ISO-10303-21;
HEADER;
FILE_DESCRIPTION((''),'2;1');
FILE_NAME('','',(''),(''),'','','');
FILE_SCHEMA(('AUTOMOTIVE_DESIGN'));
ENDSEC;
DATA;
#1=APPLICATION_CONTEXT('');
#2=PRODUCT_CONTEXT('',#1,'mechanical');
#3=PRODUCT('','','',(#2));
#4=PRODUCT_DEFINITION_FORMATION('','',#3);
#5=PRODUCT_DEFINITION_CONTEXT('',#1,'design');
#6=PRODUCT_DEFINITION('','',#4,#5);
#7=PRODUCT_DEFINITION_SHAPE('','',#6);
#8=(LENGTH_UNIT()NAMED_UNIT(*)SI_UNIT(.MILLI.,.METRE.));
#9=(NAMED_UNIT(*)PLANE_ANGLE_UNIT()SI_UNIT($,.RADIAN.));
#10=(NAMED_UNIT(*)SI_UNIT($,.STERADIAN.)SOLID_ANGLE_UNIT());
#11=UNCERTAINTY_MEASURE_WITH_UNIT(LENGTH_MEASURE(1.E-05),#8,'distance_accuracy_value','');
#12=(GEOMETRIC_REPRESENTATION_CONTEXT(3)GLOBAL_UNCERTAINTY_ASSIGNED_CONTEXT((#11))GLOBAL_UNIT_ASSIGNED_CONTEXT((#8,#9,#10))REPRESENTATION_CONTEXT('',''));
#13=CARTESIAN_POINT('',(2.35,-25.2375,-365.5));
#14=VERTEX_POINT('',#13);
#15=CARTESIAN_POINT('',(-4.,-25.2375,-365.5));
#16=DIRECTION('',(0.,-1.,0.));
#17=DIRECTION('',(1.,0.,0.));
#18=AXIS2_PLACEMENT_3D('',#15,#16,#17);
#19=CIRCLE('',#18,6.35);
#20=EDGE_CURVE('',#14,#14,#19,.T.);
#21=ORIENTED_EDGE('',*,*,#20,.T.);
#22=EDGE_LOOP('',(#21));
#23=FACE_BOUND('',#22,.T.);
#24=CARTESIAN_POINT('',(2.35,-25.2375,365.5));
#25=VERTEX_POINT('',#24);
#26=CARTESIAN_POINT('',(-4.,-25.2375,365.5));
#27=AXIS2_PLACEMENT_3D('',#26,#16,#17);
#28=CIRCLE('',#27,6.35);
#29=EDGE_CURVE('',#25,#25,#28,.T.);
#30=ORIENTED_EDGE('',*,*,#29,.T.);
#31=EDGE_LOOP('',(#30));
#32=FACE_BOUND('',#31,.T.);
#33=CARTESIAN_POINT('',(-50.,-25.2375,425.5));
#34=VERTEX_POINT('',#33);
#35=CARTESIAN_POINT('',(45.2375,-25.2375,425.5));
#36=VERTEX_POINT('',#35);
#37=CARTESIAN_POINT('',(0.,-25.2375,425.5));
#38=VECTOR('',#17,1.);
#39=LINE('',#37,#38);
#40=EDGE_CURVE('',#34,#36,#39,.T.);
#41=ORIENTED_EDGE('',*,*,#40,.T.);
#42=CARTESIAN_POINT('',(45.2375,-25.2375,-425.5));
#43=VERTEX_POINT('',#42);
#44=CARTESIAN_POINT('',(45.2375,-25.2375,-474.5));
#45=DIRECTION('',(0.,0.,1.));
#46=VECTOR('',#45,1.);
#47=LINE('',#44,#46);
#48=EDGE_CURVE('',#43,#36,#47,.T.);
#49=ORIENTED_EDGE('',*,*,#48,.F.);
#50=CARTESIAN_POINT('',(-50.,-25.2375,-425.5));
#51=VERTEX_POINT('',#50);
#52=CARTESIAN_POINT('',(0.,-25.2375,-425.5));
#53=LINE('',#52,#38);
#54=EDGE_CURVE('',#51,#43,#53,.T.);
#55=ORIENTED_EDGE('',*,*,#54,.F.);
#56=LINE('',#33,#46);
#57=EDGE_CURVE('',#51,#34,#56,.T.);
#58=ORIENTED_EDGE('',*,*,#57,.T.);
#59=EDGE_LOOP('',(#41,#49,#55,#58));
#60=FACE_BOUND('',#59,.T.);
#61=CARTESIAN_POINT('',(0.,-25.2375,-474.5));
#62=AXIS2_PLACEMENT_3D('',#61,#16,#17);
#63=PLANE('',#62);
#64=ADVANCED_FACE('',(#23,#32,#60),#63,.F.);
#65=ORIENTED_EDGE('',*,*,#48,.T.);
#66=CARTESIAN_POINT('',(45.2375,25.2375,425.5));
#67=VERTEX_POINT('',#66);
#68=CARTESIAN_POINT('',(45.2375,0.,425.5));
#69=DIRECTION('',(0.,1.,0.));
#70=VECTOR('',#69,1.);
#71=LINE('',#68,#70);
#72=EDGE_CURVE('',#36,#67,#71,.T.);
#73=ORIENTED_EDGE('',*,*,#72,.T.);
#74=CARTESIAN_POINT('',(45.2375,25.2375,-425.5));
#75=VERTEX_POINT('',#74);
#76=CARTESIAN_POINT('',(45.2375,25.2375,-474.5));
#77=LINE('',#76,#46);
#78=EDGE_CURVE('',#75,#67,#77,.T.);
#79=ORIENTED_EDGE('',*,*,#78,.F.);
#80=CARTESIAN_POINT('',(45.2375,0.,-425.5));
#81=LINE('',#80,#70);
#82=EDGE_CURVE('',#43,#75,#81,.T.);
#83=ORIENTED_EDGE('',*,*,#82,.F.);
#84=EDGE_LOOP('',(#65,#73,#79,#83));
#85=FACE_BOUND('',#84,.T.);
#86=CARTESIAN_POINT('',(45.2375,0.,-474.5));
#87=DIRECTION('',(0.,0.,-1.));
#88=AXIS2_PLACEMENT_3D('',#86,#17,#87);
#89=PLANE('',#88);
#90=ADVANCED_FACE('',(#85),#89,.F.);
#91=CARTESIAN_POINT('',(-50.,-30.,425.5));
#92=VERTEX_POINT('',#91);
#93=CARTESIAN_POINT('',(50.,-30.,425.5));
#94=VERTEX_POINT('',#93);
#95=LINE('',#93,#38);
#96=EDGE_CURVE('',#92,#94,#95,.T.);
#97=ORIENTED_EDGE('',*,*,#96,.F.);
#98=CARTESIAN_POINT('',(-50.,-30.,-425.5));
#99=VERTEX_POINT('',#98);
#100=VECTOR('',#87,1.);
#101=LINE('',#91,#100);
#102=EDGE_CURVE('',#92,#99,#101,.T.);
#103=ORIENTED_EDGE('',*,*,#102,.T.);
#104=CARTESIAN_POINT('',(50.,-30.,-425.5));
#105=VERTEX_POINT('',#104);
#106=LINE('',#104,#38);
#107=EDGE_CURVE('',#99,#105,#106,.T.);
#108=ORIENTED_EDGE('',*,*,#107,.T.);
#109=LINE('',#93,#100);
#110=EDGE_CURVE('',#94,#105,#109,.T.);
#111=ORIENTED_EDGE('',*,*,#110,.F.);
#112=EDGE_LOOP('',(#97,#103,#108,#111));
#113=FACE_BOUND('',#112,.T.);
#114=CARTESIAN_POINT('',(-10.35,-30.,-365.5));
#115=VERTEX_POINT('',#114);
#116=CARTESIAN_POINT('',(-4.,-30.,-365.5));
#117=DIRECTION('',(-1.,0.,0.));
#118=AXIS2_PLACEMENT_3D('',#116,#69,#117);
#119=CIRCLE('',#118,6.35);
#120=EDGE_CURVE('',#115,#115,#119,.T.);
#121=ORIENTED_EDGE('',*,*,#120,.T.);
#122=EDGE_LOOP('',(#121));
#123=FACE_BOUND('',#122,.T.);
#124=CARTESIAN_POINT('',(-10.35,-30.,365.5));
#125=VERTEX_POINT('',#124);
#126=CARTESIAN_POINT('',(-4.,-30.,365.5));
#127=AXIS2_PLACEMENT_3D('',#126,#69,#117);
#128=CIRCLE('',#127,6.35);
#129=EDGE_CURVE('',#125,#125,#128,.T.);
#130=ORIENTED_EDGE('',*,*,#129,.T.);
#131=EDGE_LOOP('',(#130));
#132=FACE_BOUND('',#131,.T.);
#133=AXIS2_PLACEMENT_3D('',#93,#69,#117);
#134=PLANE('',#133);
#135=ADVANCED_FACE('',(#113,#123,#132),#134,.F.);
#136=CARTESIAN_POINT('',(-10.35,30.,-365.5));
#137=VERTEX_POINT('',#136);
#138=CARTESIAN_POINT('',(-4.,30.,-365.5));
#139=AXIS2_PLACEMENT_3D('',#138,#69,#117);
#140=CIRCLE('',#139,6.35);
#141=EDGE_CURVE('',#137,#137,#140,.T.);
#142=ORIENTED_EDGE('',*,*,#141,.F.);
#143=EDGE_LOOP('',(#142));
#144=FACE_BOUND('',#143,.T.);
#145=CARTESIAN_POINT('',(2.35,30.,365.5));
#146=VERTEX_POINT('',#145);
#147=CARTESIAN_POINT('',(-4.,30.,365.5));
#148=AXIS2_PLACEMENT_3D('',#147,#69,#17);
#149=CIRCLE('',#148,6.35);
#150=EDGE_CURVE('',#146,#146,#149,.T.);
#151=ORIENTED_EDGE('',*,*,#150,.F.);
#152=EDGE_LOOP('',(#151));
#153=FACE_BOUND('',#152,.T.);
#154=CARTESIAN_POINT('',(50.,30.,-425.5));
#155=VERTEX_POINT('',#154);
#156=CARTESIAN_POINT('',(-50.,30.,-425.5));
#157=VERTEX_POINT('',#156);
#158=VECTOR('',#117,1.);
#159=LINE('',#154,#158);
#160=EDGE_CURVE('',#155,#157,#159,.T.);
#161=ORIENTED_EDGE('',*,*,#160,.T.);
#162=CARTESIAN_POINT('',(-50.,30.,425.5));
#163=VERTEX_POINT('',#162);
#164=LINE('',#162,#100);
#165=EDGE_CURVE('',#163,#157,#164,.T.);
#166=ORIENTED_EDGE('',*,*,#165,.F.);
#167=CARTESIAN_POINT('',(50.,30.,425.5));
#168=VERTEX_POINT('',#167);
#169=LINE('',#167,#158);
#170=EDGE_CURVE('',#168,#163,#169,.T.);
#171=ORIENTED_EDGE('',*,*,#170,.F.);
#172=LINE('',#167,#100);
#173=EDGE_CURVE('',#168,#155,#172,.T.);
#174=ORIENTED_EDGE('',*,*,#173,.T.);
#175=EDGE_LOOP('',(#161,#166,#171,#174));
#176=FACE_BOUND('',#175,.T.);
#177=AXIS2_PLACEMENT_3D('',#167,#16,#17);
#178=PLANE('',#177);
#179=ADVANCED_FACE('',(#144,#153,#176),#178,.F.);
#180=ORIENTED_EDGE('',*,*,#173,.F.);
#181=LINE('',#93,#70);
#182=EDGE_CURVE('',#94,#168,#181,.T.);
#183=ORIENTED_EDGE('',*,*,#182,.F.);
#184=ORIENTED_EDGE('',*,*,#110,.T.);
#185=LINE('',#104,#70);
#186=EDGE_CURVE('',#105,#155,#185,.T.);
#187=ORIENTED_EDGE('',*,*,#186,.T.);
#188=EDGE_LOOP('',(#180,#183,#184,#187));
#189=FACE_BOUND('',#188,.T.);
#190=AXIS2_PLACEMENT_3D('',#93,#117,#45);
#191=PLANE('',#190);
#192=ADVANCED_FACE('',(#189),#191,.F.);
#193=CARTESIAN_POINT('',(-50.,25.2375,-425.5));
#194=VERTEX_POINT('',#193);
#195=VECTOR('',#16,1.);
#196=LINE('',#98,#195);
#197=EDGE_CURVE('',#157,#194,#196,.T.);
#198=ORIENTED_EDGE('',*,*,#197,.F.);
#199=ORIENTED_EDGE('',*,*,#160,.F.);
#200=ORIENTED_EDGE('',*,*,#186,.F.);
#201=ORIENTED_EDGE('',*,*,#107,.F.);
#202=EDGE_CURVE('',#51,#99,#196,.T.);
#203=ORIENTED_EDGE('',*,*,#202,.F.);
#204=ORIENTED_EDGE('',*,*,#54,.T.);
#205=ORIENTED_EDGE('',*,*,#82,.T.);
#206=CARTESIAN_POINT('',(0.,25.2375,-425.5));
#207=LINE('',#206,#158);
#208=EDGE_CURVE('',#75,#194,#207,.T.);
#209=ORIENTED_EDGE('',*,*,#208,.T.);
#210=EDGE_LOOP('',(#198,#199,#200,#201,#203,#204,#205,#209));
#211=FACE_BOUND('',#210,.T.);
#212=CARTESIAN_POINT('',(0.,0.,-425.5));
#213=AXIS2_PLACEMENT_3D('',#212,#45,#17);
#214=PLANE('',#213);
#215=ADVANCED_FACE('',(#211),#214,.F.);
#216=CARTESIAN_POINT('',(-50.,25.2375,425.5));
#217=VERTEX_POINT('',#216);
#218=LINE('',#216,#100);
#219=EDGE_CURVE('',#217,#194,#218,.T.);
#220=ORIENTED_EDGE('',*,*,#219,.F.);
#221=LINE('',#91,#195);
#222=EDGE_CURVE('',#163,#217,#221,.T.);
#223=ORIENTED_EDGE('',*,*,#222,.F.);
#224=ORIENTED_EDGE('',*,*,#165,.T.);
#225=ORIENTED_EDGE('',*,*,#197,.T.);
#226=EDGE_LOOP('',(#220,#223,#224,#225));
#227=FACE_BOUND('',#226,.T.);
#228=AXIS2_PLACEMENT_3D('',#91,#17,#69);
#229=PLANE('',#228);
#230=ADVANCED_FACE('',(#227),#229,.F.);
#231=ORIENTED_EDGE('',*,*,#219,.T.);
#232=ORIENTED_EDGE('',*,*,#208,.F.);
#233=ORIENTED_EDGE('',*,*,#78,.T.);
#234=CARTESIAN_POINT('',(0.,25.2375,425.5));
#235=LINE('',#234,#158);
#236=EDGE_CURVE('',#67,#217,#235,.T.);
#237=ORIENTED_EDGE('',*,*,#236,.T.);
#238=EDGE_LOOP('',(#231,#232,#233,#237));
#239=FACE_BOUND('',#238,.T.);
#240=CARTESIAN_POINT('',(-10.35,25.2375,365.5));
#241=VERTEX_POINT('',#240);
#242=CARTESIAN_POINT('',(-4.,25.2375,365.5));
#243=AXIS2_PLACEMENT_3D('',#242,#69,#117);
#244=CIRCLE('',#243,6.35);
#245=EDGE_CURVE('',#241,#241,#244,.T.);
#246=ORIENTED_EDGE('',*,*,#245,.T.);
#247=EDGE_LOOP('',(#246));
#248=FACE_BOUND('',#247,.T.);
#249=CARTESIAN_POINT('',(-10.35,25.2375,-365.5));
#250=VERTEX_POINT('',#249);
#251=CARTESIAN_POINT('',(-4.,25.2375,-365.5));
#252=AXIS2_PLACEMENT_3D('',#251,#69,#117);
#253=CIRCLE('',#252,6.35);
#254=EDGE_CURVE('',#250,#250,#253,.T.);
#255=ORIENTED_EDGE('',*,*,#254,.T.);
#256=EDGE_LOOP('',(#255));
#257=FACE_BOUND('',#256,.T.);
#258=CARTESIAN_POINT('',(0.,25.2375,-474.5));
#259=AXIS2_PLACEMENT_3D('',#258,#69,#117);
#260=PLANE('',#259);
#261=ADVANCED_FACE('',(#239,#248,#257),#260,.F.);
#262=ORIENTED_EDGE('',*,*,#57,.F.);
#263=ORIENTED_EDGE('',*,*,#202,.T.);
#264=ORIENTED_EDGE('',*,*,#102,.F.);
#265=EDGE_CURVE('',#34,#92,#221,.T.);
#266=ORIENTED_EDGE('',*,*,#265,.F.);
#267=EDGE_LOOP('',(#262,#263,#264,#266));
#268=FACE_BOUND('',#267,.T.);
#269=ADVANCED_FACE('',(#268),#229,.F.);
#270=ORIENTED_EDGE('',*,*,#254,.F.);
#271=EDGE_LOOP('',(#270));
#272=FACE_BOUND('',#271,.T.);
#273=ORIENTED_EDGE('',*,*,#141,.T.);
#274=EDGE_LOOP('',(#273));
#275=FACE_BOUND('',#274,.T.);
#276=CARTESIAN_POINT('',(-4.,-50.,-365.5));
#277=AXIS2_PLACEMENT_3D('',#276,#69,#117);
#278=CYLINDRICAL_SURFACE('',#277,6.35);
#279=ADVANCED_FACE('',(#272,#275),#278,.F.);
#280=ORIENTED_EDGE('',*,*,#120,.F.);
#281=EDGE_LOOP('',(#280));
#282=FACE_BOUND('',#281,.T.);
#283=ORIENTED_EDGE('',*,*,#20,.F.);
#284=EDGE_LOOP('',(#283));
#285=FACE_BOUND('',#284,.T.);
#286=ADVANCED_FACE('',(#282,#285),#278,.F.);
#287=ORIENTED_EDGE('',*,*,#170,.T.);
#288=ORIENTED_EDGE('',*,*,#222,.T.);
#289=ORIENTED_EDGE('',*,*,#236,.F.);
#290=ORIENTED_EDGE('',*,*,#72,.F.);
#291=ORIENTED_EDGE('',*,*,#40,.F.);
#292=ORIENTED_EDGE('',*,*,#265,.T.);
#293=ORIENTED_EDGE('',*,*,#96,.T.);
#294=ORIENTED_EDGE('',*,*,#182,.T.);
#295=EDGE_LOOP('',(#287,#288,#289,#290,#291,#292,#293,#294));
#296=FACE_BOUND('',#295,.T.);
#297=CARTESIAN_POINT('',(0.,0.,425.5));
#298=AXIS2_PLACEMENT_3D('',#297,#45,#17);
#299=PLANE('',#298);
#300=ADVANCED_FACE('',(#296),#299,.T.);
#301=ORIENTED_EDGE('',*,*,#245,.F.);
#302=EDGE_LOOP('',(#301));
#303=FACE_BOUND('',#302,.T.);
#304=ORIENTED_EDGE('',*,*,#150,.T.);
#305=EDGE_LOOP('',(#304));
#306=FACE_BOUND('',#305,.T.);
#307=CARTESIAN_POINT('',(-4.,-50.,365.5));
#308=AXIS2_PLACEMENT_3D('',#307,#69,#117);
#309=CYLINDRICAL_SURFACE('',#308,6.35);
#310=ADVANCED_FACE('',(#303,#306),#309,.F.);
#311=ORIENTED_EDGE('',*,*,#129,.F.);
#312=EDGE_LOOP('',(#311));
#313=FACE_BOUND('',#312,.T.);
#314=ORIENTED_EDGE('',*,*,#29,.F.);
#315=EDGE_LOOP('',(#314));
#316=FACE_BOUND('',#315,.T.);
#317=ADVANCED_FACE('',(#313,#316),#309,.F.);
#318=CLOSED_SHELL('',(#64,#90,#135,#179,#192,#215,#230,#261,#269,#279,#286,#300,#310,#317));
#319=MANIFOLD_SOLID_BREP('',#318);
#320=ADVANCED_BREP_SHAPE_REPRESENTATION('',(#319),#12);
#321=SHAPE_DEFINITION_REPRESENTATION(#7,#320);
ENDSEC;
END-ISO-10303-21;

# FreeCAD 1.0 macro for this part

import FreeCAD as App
import Part
import Sketcher
from FreeCAD import Vector


def add_polygon(sketch, points):
    """Adds a closed chain of lines whose ends are joined by coincident constraints."""
    first, n = sketch.GeometryCount, len(points)
    for a, b in zip(points, points[1:] + points[:1]):
        sketch.addGeometry(Part.LineSegment(App.Vector(*a, 0), App.Vector(*b, 0)), False)
    for i in range(n):
        sketch.addConstraint(Sketcher.Constraint("Coincident", first + i, 2, first + (i + 1) % n, 1))

doc = App.newDocument("Part")
params = doc.addObject("Spreadsheet::Sheet", "Params")
for row, (alias, value) in enumerate([
    ("sketch1_width", "100 mm"),
    ("sketch1_height", "60 mm"),
    ("pad1_length", "851 mm"),
    ("pocket1_length", "900 mm"),
    ("sketch3_height", "851 mm"),
    ("pocket2_length", "20 mm"),
    ("sketch4_diameter", "12.7 mm"),
    ("pocket3_length", "80 mm"),
], start=1):
    params.set(f"A{row}", alias)
    params.set(f"B{row}", "=" + value)
    params.setAlias(f"B{row}", alias)

body = doc.addObject("PartDesign::Body", "Body")

sketch1 = body.newObject("Sketcher::SketchObject", "Sketch")
sketch1.AttachmentSupport = (doc.getObject("XY_Plane"), [""])
sketch1.MapMode = "FlatFace"
add_polygon(sketch1, [(-50, 30), (-50, -30), (50, -30), (50, 30)])
sketch1.addConstraint([
    Sketcher.Constraint("Vertical", 0),
    Sketcher.Constraint("Horizontal", 1),
    Sketcher.Constraint("Vertical", 2),
    Sketcher.Constraint("Horizontal", 3),
    Sketcher.Constraint("Symmetric", 0, 2, 2, 2, -1, 1),
    Sketcher.Constraint("DistanceX", 1, 1, 1, 2, 100.0),
    Sketcher.Constraint("DistanceY", 0, 2, 0, 1, 60.0),
])
sketch1.setExpression("Constraints[9]", "Params.sketch1_width")
sketch1.setExpression("Constraints[10]", "Params.sketch1_height")
pad1 = body.newObject("PartDesign::Pad", "Pad")
pad1.Profile = sketch1
pad1.setExpression("Length", "Params.pad1_length")
pad1.Midplane = True

sketch2 = body.newObject("Sketcher::SketchObject", "Sketch001")
sketch2.AttachmentSupport = (doc.getObject("XY_Plane"), [""])
sketch2.MapMode = "FlatFace"
sketch2.AttachmentOffset = App.Placement(Vector(0, 0, 425.5), App.Rotation())
add_polygon(sketch2, [(-45, 25), (-45, -25), (45, -25), (45, 25)])
sketch2.addConstraint([
    Sketcher.Constraint("Vertical", 0),
    Sketcher.Constraint("Horizontal", 1),
    Sketcher.Constraint("Vertical", 2),
    Sketcher.Constraint("Horizontal", 3),
    Sketcher.Constraint("Symmetric", 0, 2, 2, 2, -1, 1),
    Sketcher.Constraint("DistanceX", 1, 1, 1, 2, 90.475),
    Sketcher.Constraint("DistanceY", 0, 2, 0, 1, 50.475),
])
pocket1 = body.newObject("PartDesign::Pocket", "Pocket")
pocket1.Profile = sketch2
pocket1.setExpression("Length", "Params.pocket1_length")

sketch3 = body.newObject("Sketcher::SketchObject", "Sketch002")
sketch3.AttachmentSupport = (doc.getObject("YZ_Plane"), [""])
sketch3.MapMode = "FlatFace"
sketch3.AttachmentOffset = App.Placement(Vector(0, 0, -50), App.Rotation())
add_polygon(sketch3, [(25, -426), (-25, -426), (-25, 426), (25, 426)])
sketch3.addConstraint([
    Sketcher.Constraint("Horizontal", 0),
    Sketcher.Constraint("Vertical", 1),
    Sketcher.Constraint("Horizontal", 2),
    Sketcher.Constraint("Vertical", 3),
    Sketcher.Constraint("Symmetric", 0, 2, 2, 2, -1, 1),
    Sketcher.Constraint("DistanceY", 1, 1, 1, 2, 851.0),
    Sketcher.Constraint("DistanceX", 0, 2, 0, 1, 50.475),
])
sketch3.setExpression("Constraints[9]", "Params.sketch3_height")
pocket2 = body.newObject("PartDesign::Pocket", "Pocket001")
pocket2.Profile = sketch3
pocket2.setExpression("Length", "Params.pocket2_length")
pocket2.Reversed = True

sketch4 = body.newObject("Sketcher::SketchObject", "Sketch003")
sketch4.AttachmentSupport = (doc.getObject("XZ_Plane"), [""])
sketch4.MapMode = "FlatFace"
sketch4.AttachmentOffset = App.Placement(Vector(0, 0, -30), App.Rotation())
sketch4.addGeometry([
    Part.Circle(Vector(-4, -366, 0), Vector(0, 0, 1), 6),
    Part.Circle(Vector(-4, 366, 0), Vector(0, 0, 1), 6),
], False)
sketch4.addConstraint([
    Sketcher.Constraint("Equal", 0, 1),
    Sketcher.Constraint("Symmetric", 0, 3, 1, 3, -1),
    Sketcher.Constraint("Diameter", 0, 12.7),
    Sketcher.Constraint("DistanceX", 0, 3, -1, 1, 4.0),
    Sketcher.Constraint("DistanceY", 0, 3, 1, 3, 731.0),
])
sketch4.setExpression("Constraints[2]", "Params.sketch4_diameter")
pocket3 = body.newObject("PartDesign::Pocket", "Pocket002")
pocket3.Profile = sketch4
pocket3.setExpression("Length", "Params.pocket3_length")
pocket3.Reversed = True

doc.recompute()
